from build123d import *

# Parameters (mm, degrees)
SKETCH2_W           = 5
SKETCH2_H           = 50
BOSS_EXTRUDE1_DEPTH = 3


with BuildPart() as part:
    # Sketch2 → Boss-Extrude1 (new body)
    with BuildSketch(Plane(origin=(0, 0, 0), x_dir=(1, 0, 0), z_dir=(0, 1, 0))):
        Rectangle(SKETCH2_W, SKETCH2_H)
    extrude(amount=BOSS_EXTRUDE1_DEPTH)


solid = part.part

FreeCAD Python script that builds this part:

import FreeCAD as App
import Part
import Sketcher

doc = App.newDocument("Part")
params = doc.addObject("Spreadsheet::Sheet", "Params")
for row, (alias, value) in enumerate([
    ("sketch1_width", "5 mm"),
    ("sketch1_height", "50 mm"),
    ("pad1_length", "3 mm"),
], start=1):
    params.set(f"A{row}", alias)
    params.set(f"B{row}", "=" + value)
    params.setAlias(f"B{row}", alias)

body = doc.addObject("PartDesign::Body", "Body")

# Sketch on XZ plane
sketch1 = body.newObject("Sketcher::SketchObject", "Sketch")
sketch1.AttachmentSupport = (doc.getObject("XZ_Plane"), [""])
sketch1.MapMode = "FlatFace"
sketch1.addGeometry([
    Part.LineSegment(App.Vector(-2, -25, 0), App.Vector(-2, 25, 0)),
    Part.LineSegment(App.Vector(-2, 25, 0), App.Vector(2, 25, 0)),
    Part.LineSegment(App.Vector(2, 25, 0), App.Vector(2, -25, 0)),
    Part.LineSegment(App.Vector(2, -25, 0), App.Vector(-2, -25, 0)),
], False)
sketch1.addConstraint([
    Sketcher.Constraint("Coincident", 0, 2, 1, 1),
    Sketcher.Constraint("Coincident", 1, 2, 2, 1),
    Sketcher.Constraint("Coincident", 2, 2, 3, 1),
    Sketcher.Constraint("Coincident", 3, 2, 0, 1),
    Sketcher.Constraint("Vertical", 0),
    Sketcher.Constraint("Horizontal", 1),
    Sketcher.Constraint("Vertical", 2),
    Sketcher.Constraint("Horizontal", 3),
    Sketcher.Constraint("Symmetric", 0, 2, 2, 2, -1, 1),
    Sketcher.Constraint("DistanceX", 1, 1, 1, 2, 5.0),
    Sketcher.Constraint("DistanceY", 0, 1, 0, 2, 50.0),
])
sketch1.setExpression("Constraints[9]", "Params.sketch1_width")
sketch1.setExpression("Constraints[10]", "Params.sketch1_height")
pad1 = body.newObject("PartDesign::Pad", "Pad")
pad1.Profile = sketch1
pad1.setExpression("Length", "Params.pad1_length")
pad1.Reversed = True

doc.recompute()
